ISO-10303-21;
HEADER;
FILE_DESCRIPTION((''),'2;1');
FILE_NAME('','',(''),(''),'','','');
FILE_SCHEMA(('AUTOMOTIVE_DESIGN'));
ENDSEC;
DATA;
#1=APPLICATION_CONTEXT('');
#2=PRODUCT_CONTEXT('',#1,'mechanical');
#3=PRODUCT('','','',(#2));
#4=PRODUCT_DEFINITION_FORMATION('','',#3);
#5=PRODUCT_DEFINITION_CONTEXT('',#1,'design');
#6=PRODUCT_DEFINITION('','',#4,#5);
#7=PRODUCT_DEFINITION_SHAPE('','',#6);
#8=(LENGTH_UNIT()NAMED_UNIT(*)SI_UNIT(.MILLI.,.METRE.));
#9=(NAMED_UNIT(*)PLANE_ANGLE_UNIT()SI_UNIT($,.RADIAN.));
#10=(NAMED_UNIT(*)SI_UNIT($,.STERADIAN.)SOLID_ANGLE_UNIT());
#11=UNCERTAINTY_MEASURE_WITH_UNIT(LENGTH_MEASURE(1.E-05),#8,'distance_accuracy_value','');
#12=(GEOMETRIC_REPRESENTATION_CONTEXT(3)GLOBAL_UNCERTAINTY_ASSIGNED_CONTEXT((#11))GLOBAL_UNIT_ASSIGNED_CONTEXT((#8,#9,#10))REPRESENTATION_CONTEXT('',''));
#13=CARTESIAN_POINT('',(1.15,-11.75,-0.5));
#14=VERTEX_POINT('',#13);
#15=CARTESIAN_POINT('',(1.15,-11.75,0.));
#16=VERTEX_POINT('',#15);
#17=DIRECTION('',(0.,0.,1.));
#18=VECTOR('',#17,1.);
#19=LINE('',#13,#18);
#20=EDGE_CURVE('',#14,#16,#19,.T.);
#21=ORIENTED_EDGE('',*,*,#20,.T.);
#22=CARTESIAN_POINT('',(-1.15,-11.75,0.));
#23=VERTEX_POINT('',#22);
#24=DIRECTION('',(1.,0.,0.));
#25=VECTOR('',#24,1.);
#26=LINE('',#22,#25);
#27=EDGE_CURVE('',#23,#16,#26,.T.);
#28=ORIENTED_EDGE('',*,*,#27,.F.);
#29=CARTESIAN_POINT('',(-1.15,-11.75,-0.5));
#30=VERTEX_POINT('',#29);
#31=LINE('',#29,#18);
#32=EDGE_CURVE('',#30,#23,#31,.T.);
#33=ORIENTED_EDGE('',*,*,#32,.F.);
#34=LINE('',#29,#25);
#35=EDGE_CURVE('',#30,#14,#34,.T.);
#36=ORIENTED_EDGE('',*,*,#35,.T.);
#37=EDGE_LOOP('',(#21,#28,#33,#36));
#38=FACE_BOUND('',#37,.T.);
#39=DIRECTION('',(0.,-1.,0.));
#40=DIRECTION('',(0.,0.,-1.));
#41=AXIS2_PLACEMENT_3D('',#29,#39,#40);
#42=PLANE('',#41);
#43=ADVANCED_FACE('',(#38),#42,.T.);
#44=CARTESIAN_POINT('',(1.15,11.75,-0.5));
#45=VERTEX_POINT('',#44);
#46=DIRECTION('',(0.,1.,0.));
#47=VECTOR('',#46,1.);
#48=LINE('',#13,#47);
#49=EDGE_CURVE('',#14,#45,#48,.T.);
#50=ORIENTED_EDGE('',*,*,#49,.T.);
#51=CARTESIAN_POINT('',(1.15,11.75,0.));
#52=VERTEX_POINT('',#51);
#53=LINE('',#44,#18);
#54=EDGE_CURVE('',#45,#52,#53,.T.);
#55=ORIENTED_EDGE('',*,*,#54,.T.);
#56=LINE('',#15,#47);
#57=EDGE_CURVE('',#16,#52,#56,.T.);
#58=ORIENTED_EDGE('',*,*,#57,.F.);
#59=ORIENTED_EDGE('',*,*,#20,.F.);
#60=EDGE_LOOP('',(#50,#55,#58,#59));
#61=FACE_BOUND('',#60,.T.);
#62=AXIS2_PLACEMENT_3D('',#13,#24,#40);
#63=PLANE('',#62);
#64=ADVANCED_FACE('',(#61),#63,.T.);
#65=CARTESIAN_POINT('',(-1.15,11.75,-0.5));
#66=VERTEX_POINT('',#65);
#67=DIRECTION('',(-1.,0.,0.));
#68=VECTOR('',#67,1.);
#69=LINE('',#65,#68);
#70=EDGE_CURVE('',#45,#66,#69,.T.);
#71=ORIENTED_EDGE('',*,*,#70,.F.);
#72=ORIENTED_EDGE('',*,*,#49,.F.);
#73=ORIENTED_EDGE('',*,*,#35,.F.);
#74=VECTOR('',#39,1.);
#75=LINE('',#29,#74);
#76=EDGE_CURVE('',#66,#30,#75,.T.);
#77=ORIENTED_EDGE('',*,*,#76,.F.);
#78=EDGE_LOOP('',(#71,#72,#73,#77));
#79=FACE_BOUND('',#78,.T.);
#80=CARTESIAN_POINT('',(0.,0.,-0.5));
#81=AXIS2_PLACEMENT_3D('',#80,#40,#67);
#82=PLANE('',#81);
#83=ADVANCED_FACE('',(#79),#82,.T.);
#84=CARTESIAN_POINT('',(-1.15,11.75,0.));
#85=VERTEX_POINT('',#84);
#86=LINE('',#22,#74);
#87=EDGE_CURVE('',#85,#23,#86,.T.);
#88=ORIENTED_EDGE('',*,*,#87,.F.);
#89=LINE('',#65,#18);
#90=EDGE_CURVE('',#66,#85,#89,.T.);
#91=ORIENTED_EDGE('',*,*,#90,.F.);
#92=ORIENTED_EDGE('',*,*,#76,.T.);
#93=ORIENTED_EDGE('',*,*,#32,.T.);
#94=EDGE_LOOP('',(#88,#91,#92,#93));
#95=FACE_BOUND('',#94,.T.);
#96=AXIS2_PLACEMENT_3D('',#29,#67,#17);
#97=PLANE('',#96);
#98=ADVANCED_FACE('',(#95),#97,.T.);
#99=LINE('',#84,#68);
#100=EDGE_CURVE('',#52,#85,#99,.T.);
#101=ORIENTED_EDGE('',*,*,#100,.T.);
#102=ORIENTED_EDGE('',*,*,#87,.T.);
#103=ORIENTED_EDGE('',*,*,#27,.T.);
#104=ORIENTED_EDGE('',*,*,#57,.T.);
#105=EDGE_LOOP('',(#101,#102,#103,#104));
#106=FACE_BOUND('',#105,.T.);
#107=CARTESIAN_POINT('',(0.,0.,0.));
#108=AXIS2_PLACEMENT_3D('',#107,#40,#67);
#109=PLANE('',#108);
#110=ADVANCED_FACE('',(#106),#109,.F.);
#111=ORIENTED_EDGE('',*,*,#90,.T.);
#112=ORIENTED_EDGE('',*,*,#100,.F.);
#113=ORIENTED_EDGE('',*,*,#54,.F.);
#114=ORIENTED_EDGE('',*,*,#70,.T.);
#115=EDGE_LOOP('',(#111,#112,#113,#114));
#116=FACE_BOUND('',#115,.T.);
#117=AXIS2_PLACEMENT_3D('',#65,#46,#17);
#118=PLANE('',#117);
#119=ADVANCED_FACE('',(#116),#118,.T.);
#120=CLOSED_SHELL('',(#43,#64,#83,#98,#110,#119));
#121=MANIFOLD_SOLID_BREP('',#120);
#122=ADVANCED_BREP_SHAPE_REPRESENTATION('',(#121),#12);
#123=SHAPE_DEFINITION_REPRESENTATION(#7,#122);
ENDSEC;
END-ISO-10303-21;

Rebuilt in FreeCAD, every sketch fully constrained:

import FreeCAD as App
import Part
import Sketcher

V = App.Vector
Q = App.Units.Quantity


def add_polygon(sketch, points):
    """Adds a closed chain of lines whose ends are joined by coincident constraints."""
    first, n = sketch.GeometryCount, len(points)
    for a, b in zip(points, points[1:] + points[:1]):
        sketch.addGeometry(Part.LineSegment(App.Vector(*a, 0), App.Vector(*b, 0)), False)
    for i in range(n):
        sketch.addConstraint(Sketcher.Constraint("Coincident", first + i, 2, first + (i + 1) % n, 1))

doc = App.newDocument("Part")
body = doc.addObject("PartDesign::Body", "Body")

sketch1 = body.newObject("Sketcher::SketchObject", "Sketch")
sketch1.AttachmentSupport = (doc.getObject("XY_Plane"), [""])
sketch1.MapMode = "FlatFace"
add_polygon(sketch1, [(-1.1, 11.8), (-1.1, -11.8), (1.1, -11.8), (1.1, 11.8)])
sketch1.addConstraint(Sketcher.Constraint("Vertical", 0))
sketch1.addConstraint(Sketcher.Constraint("Horizontal", 1))
sketch1.addConstraint(Sketcher.Constraint("Vertical", 2))
sketch1.addConstraint(Sketcher.Constraint("Horizontal", 3))
sketch1.addConstraint(Sketcher.Constraint("Symmetric", 0, 2, 2, 2, -1, 1))
sketch1.addConstraint(Sketcher.Constraint("DistanceX", 1, 1, 1, 2, Q("2.3 mm")))
sketch1.addConstraint(Sketcher.Constraint("DistanceY", 0, 2, 0, 1, Q("23.5 mm")))
pad1 = body.newObject("PartDesign::Pad", "Pad")
pad1.Profile = sketch1
pad1.Length = 0.5
pad1.Reversed = True

doc.recompute()
